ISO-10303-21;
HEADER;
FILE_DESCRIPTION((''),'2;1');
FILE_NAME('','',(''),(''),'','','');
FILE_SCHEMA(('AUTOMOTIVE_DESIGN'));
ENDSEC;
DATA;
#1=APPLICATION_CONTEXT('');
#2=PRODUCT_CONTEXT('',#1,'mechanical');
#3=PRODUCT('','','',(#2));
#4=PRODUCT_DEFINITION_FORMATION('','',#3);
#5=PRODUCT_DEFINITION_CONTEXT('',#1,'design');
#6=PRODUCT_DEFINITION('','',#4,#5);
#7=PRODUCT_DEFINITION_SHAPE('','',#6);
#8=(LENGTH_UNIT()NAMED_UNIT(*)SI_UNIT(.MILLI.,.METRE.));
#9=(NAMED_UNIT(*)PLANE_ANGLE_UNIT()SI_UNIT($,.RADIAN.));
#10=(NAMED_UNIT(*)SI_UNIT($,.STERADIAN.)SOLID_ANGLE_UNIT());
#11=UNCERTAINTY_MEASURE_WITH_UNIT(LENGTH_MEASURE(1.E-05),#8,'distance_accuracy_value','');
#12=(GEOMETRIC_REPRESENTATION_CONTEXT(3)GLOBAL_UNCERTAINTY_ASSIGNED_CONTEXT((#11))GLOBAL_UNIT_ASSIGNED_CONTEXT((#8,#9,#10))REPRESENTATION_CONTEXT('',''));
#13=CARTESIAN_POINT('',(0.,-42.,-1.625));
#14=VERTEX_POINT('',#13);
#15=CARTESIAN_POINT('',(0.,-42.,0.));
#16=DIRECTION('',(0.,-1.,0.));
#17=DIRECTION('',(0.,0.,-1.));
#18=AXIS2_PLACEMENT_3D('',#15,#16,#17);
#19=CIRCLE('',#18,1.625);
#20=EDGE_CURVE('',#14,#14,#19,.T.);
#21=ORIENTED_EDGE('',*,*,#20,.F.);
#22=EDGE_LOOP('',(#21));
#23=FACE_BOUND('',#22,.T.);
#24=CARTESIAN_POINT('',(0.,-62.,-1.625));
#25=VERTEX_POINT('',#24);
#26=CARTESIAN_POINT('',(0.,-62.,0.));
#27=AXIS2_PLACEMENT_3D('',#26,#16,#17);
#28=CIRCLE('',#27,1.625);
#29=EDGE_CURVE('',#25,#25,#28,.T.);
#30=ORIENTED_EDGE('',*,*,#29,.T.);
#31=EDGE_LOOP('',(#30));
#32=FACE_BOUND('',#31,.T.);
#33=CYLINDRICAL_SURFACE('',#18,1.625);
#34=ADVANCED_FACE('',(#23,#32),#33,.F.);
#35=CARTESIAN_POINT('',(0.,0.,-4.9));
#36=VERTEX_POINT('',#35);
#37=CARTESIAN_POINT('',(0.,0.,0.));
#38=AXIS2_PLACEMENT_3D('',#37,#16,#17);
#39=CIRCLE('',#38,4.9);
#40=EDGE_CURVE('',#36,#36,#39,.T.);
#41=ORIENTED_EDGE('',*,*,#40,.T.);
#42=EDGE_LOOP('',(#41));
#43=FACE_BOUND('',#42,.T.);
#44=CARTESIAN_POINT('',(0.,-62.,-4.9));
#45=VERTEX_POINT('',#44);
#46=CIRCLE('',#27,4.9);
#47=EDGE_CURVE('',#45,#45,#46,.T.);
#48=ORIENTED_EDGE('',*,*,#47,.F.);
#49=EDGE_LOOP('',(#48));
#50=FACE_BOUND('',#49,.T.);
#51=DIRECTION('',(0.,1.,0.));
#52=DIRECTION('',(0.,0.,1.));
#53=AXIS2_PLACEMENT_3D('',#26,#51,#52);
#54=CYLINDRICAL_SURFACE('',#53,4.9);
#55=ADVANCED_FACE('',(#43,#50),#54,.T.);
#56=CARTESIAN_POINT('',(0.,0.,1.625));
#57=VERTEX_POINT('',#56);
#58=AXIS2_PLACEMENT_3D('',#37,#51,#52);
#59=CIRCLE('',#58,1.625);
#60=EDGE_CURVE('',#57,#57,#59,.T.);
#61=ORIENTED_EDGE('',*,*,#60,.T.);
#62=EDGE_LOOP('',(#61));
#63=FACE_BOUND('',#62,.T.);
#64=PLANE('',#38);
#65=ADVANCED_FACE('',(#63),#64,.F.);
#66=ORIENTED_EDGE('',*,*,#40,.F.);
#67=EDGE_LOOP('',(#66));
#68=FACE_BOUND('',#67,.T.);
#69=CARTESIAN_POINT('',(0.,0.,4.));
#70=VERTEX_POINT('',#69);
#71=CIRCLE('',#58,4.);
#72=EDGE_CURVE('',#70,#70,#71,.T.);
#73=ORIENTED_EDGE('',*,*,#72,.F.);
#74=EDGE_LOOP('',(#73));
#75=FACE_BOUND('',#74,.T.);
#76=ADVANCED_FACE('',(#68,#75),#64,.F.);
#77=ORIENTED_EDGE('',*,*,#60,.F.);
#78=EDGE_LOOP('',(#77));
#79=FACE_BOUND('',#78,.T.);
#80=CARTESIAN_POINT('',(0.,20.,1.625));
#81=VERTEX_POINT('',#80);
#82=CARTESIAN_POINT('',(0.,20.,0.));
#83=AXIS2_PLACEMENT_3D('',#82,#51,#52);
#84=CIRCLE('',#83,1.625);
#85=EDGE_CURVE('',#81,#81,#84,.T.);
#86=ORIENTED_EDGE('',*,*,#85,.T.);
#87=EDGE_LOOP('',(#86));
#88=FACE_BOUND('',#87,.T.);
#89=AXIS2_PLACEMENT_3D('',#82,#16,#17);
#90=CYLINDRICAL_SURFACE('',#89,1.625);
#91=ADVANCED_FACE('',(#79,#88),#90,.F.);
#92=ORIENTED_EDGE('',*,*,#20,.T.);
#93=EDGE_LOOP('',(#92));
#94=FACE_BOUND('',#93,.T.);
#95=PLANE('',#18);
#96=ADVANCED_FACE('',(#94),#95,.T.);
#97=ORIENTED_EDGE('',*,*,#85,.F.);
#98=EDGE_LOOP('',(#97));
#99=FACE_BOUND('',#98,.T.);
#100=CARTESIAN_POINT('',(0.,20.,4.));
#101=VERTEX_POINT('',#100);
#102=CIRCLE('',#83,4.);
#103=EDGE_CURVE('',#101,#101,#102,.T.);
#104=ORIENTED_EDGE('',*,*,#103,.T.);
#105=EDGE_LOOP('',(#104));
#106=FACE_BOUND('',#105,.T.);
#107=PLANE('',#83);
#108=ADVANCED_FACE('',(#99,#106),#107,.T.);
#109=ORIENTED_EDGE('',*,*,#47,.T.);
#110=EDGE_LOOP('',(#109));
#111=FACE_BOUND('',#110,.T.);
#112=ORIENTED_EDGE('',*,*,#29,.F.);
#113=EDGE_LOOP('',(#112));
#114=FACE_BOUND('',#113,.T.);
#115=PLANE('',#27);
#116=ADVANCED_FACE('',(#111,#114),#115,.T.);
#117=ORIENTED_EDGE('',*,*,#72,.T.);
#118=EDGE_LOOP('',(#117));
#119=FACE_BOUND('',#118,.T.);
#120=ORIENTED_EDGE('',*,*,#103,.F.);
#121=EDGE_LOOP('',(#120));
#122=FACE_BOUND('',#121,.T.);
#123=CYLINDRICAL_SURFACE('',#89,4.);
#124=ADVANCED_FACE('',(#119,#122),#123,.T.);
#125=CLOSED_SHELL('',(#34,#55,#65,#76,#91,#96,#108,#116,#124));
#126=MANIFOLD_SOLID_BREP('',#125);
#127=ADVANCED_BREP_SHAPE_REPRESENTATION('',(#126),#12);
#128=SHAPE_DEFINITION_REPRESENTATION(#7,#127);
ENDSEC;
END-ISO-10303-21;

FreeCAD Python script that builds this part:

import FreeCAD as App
import Part
import Sketcher

V = App.Vector

doc = App.newDocument("Part")
params = doc.addObject("Spreadsheet::Sheet", "Params")
for row, (alias, value) in enumerate([
    ("sketch1_diameter", "8 mm"),
    ("sketch1_diameter2", "3.25 mm"),
    ("pad1_length", "20 mm"),
    ("sketch2_diameter", "9.8 mm"),
    ("pad2_length", "62 mm"),
    ("sketch3_diameter", "3.25 mm"),
    ("pocket1_length", "20 mm"),
], start=1):
    params.set(f"A{row}", alias)
    params.set(f"B{row}", "=" + value)
    params.setAlias(f"B{row}", alias)

body = doc.addObject("PartDesign::Body", "Body")

sketch1 = doc.addObject("Sketcher::SketchObject", "Sketch")
body.addObject(sketch1)
sketch1.AttachmentSupport = (doc.XZ_Plane, [""])
sketch1.MapMode = "FlatFace"
sketch1.addGeometry([
    Part.Circle(V(0, 0, 0), V(0, 0, 1), 4),
    Part.Circle(V(0, 0, 0), V(0, 0, 1), 1.625),
], False)
sketch1.addConstraint([
    Sketcher.Constraint("Coincident", 0, 3, -1, 1),
    Sketcher.Constraint("Coincident", 1, 3, -1, 1),
    Sketcher.Constraint("Diameter", 0, 8.0),
    Sketcher.Constraint("Diameter", 1, 3.25),
])
sketch1.setExpression("Constraints[2]", "Params.sketch1_diameter")
sketch1.setExpression("Constraints[3]", "Params.sketch1_diameter2")
pad1 = doc.addObject("PartDesign::Pad", "Pad")
body.addObject(pad1)
pad1.Profile = sketch1
pad1.setExpression("Length", "Params.pad1_length")
pad1.Reversed = True

sketch2 = doc.addObject("Sketcher::SketchObject", "Sketch001")
body.addObject(sketch2)
sketch2.AttachmentSupport = (doc.XZ_Plane, [""])
sketch2.MapMode = "FlatFace"
sketch2.addGeometry(Part.Circle(V(0, 0, 0), V(0, 0, 1), 4.9), False)
sketch2.addConstraint([
    Sketcher.Constraint("Coincident", 0, 3, -1, 1),
    Sketcher.Constraint("Diameter", 0, 9.8),
])
sketch2.setExpression("Constraints[1]", "Params.sketch2_diameter")
pad2 = doc.addObject("PartDesign::Pad", "Pad001")
body.addObject(pad2)
pad2.Profile = sketch2
pad2.setExpression("Length", "Params.pad2_length")

sketch3 = doc.addObject("Sketcher::SketchObject", "Sketch002")
body.addObject(sketch3)
sketch3.AttachmentSupport = (doc.XZ_Plane, [""])
sketch3.MapMode = "FlatFace"
sketch3.AttachmentOffset = App.Placement(V(0, 0, 62), App.Rotation())
sketch3.addGeometry(Part.Circle(V(0, 0, 0), V(0, 0, 1), 1.625), False)
sketch3.addConstraint([
    Sketcher.Constraint("Coincident", 0, 3, -1, 1),
    Sketcher.Constraint("Diameter", 0, 3.25),
])
sketch3.setExpression("Constraints[1]", "Params.sketch3_diameter")
pocket1 = doc.addObject("PartDesign::Pocket", "Pocket")
body.addObject(pocket1)
pocket1.Profile = sketch3
pocket1.setExpression("Length", "Params.pocket1_length")

doc.recompute()
